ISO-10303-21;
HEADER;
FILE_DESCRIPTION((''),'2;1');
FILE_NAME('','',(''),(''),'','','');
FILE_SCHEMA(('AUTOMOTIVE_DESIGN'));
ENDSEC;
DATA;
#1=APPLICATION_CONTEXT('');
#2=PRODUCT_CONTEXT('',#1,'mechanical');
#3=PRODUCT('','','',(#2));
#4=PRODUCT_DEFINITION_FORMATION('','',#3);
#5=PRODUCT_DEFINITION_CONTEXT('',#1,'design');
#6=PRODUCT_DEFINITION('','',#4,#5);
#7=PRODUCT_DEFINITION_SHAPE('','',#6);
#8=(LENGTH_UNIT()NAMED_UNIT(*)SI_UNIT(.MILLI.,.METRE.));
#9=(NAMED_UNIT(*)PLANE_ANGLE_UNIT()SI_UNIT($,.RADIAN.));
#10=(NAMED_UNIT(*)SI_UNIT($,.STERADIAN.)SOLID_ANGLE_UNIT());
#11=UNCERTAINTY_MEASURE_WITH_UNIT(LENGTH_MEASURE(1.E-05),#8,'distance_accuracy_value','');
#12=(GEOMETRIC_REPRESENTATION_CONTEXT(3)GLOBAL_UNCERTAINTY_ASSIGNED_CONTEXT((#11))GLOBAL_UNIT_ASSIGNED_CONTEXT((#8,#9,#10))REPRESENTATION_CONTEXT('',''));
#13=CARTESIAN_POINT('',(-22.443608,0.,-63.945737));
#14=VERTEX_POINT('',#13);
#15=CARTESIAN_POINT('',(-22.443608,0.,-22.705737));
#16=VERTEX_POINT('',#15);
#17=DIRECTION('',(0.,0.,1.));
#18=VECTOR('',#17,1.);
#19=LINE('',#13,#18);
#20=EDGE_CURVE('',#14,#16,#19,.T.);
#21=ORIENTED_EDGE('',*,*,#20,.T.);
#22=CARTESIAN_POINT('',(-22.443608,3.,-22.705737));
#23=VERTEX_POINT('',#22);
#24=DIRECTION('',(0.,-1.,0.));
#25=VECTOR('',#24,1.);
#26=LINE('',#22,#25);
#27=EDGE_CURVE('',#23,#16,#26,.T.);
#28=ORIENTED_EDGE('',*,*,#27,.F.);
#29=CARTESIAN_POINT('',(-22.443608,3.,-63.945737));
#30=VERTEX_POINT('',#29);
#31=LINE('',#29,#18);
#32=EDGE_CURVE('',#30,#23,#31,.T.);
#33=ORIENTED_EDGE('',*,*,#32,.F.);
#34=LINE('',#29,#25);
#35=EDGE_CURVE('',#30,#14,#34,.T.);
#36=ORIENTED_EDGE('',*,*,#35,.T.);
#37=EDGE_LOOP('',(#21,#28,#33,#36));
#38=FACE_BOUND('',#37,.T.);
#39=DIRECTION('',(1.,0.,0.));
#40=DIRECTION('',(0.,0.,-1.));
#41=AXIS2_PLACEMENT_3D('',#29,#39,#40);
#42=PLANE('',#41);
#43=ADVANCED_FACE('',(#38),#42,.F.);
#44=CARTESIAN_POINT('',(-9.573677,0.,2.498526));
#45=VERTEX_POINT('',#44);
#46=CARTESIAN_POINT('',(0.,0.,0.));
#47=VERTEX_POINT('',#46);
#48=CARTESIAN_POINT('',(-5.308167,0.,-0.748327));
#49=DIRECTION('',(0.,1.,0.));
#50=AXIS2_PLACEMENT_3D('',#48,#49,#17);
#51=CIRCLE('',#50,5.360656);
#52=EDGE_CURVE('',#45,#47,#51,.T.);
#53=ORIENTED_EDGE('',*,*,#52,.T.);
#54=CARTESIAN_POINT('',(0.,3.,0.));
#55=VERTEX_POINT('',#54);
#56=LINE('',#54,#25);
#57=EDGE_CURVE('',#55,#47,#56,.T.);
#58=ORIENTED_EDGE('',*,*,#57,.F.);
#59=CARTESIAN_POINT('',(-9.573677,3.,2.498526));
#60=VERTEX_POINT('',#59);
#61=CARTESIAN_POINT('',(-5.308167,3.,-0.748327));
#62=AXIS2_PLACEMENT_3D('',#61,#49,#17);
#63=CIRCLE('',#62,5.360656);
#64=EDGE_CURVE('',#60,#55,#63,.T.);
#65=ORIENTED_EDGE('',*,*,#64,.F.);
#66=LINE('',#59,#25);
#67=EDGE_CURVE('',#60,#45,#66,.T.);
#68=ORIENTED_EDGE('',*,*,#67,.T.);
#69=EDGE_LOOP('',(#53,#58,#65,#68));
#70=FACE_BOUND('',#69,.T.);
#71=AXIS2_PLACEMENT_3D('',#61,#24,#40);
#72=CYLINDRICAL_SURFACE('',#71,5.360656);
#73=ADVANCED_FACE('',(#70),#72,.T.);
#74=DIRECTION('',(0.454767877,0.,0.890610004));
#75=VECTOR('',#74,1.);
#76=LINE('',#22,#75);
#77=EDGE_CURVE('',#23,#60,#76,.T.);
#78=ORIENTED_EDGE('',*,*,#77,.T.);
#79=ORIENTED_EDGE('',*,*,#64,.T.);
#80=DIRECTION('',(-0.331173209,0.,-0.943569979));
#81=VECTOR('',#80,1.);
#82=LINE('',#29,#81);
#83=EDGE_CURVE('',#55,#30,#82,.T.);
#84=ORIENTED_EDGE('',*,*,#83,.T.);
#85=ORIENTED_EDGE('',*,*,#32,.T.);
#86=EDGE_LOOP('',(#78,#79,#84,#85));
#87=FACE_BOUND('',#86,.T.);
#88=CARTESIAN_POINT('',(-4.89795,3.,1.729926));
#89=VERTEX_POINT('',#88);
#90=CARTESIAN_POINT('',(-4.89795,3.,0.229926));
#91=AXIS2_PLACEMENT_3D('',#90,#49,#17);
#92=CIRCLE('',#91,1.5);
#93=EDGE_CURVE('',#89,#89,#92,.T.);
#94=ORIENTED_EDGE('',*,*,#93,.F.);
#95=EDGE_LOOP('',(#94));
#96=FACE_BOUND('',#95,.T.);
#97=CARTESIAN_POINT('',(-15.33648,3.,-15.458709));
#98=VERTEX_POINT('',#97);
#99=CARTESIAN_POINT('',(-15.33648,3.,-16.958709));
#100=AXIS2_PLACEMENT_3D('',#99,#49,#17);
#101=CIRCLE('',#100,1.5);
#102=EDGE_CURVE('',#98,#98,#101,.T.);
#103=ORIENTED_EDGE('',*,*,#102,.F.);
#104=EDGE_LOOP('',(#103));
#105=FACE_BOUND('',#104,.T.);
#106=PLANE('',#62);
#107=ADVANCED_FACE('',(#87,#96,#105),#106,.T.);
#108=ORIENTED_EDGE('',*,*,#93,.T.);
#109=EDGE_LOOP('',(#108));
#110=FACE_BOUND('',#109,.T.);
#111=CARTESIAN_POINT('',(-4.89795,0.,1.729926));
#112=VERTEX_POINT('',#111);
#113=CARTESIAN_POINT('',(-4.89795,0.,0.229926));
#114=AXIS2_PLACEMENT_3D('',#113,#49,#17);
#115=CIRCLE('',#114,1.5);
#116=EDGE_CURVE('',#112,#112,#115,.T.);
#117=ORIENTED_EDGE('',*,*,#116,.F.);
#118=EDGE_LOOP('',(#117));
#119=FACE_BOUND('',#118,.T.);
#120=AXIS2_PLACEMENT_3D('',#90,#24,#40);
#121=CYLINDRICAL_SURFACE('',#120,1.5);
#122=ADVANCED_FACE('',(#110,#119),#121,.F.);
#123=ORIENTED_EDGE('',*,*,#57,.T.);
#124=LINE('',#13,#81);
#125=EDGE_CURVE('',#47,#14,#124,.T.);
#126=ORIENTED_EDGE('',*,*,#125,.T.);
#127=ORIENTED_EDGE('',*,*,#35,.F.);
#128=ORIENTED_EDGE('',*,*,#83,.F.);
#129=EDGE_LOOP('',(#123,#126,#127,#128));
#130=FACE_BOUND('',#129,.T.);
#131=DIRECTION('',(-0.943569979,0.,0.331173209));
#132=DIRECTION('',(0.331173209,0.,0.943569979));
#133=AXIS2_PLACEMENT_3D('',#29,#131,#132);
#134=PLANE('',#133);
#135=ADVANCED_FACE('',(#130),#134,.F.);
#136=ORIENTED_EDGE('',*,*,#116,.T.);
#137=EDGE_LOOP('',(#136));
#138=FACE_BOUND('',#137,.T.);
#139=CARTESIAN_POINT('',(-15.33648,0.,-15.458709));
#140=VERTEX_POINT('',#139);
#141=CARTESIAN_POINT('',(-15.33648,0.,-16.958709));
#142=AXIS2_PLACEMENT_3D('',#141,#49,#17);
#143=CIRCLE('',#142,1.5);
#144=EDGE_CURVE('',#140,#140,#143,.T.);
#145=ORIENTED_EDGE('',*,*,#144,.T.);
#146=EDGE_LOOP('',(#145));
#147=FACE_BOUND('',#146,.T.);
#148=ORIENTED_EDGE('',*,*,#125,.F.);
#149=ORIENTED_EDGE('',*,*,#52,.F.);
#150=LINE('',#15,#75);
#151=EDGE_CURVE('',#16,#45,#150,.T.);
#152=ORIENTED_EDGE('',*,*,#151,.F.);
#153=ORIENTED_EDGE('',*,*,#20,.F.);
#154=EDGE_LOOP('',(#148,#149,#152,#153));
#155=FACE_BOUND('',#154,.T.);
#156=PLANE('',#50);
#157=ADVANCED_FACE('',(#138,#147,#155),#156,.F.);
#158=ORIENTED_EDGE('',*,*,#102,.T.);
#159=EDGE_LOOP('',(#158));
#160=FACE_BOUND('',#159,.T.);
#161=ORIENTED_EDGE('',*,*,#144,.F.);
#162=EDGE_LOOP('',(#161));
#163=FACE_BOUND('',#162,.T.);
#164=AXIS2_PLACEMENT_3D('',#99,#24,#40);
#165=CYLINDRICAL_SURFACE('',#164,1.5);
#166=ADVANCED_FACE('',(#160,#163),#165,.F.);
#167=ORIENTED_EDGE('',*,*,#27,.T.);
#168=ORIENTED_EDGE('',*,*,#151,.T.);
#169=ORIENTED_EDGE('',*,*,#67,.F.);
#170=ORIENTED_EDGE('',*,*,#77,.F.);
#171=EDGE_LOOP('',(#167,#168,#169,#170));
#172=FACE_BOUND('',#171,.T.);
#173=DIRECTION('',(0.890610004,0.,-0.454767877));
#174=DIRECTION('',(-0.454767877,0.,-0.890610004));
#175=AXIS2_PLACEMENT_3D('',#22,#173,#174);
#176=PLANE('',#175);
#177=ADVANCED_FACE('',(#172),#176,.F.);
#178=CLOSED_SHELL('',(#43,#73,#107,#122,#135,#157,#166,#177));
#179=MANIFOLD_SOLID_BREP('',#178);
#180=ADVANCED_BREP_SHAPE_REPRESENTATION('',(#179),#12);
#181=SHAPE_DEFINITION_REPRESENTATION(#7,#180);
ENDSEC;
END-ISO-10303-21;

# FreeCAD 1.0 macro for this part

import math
import FreeCAD as App
import Part
import Sketcher

V = App.Vector
Q = App.Units.Quantity

doc = App.newDocument("Part")
body = doc.addObject("PartDesign::Body", "Body")

# Sketch on XZ plane
sketch1 = body.newObject("Sketcher::SketchObject", "Sketch")
sketch1.AttachmentSupport = (doc.getObject("XZ_Plane"), [""])
sketch1.MapMode = "FlatFace"
sketch1.addGeometry([
    Part.LineSegment(V(-22.4, -63.9, 0), V(-22.4, -22.7, 0)),  # 0
    Part.LineSegment(V(-22.4, -22.7, 0), V(-9.6, 2.5, 0)),  # 1
    Part.ArcOfCircle(Part.Circle(V(-5.3, -0.7, 0), V(0, 0, 1), 5.4), math.radians(8), math.radians(143)),  # 2
    Part.LineSegment(V(0, 0, 0), V(-22.4, -63.9, 0)),  # 3
    Part.Circle(V(-4.9, 0.2, 0), V(0, 0, 1), 1.5),  # 4
    Part.Circle(V(-15.3, -17, 0), V(0, 0, 1), 1.5),  # 5
], False)
sketch1.addConstraint([
    Sketcher.Constraint("Coincident", 0, 2, 1, 1),
    Sketcher.Constraint("Coincident", 1, 2, 2, 2),
    Sketcher.Constraint("Coincident", 2, 1, 3, 1),
    Sketcher.Constraint("Coincident", 3, 2, 0, 1),
    Sketcher.Constraint("Vertical", 0),
    Sketcher.Constraint("Coincident", 2, 1, -1, 1),
    Sketcher.Constraint("Equal", 4, 5),
    Sketcher.Constraint("Diameter", 4, 3.0),
    Sketcher.Constraint("Distance", 1, 28.3),
    Sketcher.Constraint("DistanceY", 0, 1, 0, 2, 41.24),
    Sketcher.Constraint("Angle", 1, Q("62.95 deg")),
    Sketcher.Constraint("Angle", 3, Q("-109.34 deg")),
    Sketcher.Constraint("Distance", 3, 67.77),
    Sketcher.Constraint("Radius", 2, 5.360656),
    Sketcher.Constraint("DistanceY", 4, 3, 1, 2, 2.2686),
    Sketcher.Constraint("DistanceX", 4, 3, -1, 1, 4.89795),
    Sketcher.Constraint("DistanceX", 5, 3, -1, 1, 15.33648),
    Sketcher.Constraint("DistanceY", 5, 3, -1, 1, 16.958709),
])
pad1 = body.newObject("PartDesign::Pad", "Pad")
pad1.Profile = sketch1
pad1.Length = 3
pad1.Reversed = True

doc.recompute()
